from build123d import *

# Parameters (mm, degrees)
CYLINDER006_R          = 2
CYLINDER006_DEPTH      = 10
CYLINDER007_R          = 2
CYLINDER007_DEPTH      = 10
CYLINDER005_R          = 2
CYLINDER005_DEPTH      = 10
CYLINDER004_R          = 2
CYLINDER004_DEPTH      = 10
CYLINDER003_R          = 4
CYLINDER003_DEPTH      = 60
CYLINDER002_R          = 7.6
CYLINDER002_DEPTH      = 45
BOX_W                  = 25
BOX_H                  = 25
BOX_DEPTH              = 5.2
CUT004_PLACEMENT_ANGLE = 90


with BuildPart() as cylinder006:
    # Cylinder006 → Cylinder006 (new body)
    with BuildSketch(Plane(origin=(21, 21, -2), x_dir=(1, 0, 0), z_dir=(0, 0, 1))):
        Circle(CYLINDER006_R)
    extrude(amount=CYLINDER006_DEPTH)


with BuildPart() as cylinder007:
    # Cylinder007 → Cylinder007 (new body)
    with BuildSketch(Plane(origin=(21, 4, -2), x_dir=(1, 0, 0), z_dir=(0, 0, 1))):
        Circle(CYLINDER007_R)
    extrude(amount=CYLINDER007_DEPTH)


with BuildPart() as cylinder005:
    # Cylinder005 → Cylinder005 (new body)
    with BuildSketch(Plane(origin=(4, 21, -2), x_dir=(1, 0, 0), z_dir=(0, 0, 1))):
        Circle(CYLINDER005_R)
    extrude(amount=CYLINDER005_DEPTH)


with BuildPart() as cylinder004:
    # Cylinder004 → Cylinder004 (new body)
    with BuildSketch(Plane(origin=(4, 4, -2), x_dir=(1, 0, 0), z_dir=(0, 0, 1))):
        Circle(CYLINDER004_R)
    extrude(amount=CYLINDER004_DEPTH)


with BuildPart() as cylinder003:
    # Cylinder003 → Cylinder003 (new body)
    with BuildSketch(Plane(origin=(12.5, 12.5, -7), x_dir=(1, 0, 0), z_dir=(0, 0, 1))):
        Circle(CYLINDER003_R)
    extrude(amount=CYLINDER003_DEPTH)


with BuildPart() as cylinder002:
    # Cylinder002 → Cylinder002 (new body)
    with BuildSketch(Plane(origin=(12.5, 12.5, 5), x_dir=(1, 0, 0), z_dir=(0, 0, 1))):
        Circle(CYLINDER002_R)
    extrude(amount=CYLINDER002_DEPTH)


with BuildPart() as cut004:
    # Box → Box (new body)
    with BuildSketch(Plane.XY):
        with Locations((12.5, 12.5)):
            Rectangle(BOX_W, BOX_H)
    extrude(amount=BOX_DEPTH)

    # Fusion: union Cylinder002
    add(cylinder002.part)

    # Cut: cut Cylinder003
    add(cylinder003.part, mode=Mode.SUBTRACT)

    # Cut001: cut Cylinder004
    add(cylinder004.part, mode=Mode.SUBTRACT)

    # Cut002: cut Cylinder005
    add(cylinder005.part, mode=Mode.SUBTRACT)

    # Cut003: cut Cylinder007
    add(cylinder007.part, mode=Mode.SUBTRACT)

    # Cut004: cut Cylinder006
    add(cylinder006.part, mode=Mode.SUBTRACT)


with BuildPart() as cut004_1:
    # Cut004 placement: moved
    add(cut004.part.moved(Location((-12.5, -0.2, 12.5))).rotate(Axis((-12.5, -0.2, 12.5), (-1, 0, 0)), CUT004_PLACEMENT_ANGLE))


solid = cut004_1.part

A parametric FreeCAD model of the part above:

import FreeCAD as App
import Part
import Sketcher

V = App.Vector

doc = App.newDocument("Part")
params = doc.addObject("Spreadsheet::Sheet", "Params")
for row, (alias, value) in enumerate([
    ("sketch1_diameter", "4 mm"),
    ("pad1_length", "10 mm"),
    ("sketch2_diameter", "4 mm"),
    ("pad2_length", "10 mm"),
    ("sketch3_diameter", "4 mm"),
    ("pad3_length", "10 mm"),
    ("sketch4_diameter", "4 mm"),
    ("pad4_length", "10 mm"),
    ("sketch5_diameter", "8 mm"),
    ("pad5_length", "60 mm"),
    ("sketch6_diameter", "15.2 mm"),
    ("pad6_length", "45 mm"),
    ("sketch7_width", "25 mm"),
    ("pad7_length", "5.2 mm"),
], start=1):
    params.set(f"A{row}", alias)
    params.set(f"B{row}", "=" + value)
    params.setAlias(f"B{row}", alias)

body = doc.addObject("PartDesign::Body", "Body")

# Sketch on XY plane
sketch1 = doc.addObject("Sketcher::SketchObject", "Sketch")
body.addObject(sketch1)
sketch1.AttachmentSupport = (doc.XY_Plane, [""])
sketch1.MapMode = "FlatFace"
sketch1.AttachmentOffset = App.Placement(V(0, 0, -2), App.Rotation())
sketch1.addGeometry(Part.Circle(V(21, 21, 0), V(0, 0, 1), 2), False)
sketch1.addConstraint([
    Sketcher.Constraint("Diameter", 0, 4.0),
    Sketcher.Constraint("DistanceX", -1, 1, 0, 3, 21.0),
    Sketcher.Constraint("DistanceY", -1, 1, 0, 3, 21.0),
])
sketch1.setExpression("Constraints[0]", "Params.sketch1_diameter")
pad1 = doc.addObject("PartDesign::Pad", "Pad")
body.addObject(pad1)
pad1.Profile = sketch1
pad1.setExpression("Length", "Params.pad1_length")
body2 = doc.addObject("PartDesign::Body", "Body001")

# Sketch on XY plane
sketch2 = doc.addObject("Sketcher::SketchObject", "Sketch001")
body2.addObject(sketch2)
sketch2.AttachmentSupport = (doc.getObject("XY_Plane001"), [""])
sketch2.MapMode = "FlatFace"
sketch2.AttachmentOffset = App.Placement(V(0, 0, -2), App.Rotation())
sketch2.addGeometry(Part.Circle(V(21, 4, 0), V(0, 0, 1), 2), False)
sketch2.addConstraint([
    Sketcher.Constraint("Diameter", 0, 4.0),
    Sketcher.Constraint("DistanceX", -1, 1, 0, 3, 21.0),
    Sketcher.Constraint("DistanceY", -1, 1, 0, 3, 4.0),
])
sketch2.setExpression("Constraints[0]", "Params.sketch2_diameter")
pad2 = doc.addObject("PartDesign::Pad", "Pad001")
body2.addObject(pad2)
pad2.Profile = sketch2
pad2.setExpression("Length", "Params.pad2_length")
body3 = doc.addObject("PartDesign::Body", "Body002")

# Sketch on XY plane
sketch3 = doc.addObject("Sketcher::SketchObject", "Sketch002")
body3.addObject(sketch3)
sketch3.AttachmentSupport = (doc.getObject("XY_Plane002"), [""])
sketch3.MapMode = "FlatFace"
sketch3.AttachmentOffset = App.Placement(V(0, 0, -2), App.Rotation())
sketch3.addGeometry(Part.Circle(V(4, 21, 0), V(0, 0, 1), 2), False)
sketch3.addConstraint([
    Sketcher.Constraint("Diameter", 0, 4.0),
    Sketcher.Constraint("DistanceX", -1, 1, 0, 3, 4.0),
    Sketcher.Constraint("DistanceY", -1, 1, 0, 3, 21.0),
])
sketch3.setExpression("Constraints[0]", "Params.sketch3_diameter")
pad3 = doc.addObject("PartDesign::Pad", "Pad002")
body3.addObject(pad3)
pad3.Profile = sketch3
pad3.setExpression("Length", "Params.pad3_length")
body4 = doc.addObject("PartDesign::Body", "Body003")

# Sketch on XY plane
sketch4 = doc.addObject("Sketcher::SketchObject", "Sketch003")
body4.addObject(sketch4)
sketch4.AttachmentSupport = (doc.getObject("XY_Plane003"), [""])
sketch4.MapMode = "FlatFace"
sketch4.AttachmentOffset = App.Placement(V(0, 0, -2), App.Rotation())
sketch4.addGeometry(Part.Circle(V(4, 4, 0), V(0, 0, 1), 2), False)
sketch4.addConstraint([
    Sketcher.Constraint("Diameter", 0, 4.0),
    Sketcher.Constraint("DistanceX", -1, 1, 0, 3, 4.0),
    Sketcher.Constraint("DistanceY", -1, 1, 0, 3, 4.0),
])
sketch4.setExpression("Constraints[0]", "Params.sketch4_diameter")
pad4 = doc.addObject("PartDesign::Pad", "Pad003")
body4.addObject(pad4)
pad4.Profile = sketch4
pad4.setExpression("Length", "Params.pad4_length")
body5 = doc.addObject("PartDesign::Body", "Body004")

# Sketch on XY plane
sketch5 = doc.addObject("Sketcher::SketchObject", "Sketch004")
body5.addObject(sketch5)
sketch5.AttachmentSupport = (doc.getObject("XY_Plane004"), [""])
sketch5.MapMode = "FlatFace"
sketch5.AttachmentOffset = App.Placement(V(0, 0, -7), App.Rotation())
sketch5.addGeometry(Part.Circle(V(12.5, 12.5, 0), V(0, 0, 1), 4), False)
sketch5.addConstraint([
    Sketcher.Constraint("Diameter", 0, 8.0),
    Sketcher.Constraint("DistanceX", -1, 1, 0, 3, 12.5),
    Sketcher.Constraint("DistanceY", -1, 1, 0, 3, 12.5),
])
sketch5.setExpression("Constraints[0]", "Params.sketch5_diameter")
pad5 = doc.addObject("PartDesign::Pad", "Pad004")
body5.addObject(pad5)
pad5.Profile = sketch5
pad5.setExpression("Length", "Params.pad5_length")
body6 = doc.addObject("PartDesign::Body", "Body005")

# Sketch on XY plane
sketch6 = doc.addObject("Sketcher::SketchObject", "Sketch005")
body6.addObject(sketch6)
sketch6.AttachmentSupport = (doc.getObject("XY_Plane005"), [""])
sketch6.MapMode = "FlatFace"
sketch6.AttachmentOffset = App.Placement(V(0, 0, 5), App.Rotation())
sketch6.addGeometry(Part.Circle(V(12, 12, 0), V(0, 0, 1), 8), False)
sketch6.addConstraint([
    Sketcher.Constraint("Diameter", 0, 15.2),
    Sketcher.Constraint("DistanceX", -1, 1, 0, 3, 12.5),
    Sketcher.Constraint("DistanceY", -1, 1, 0, 3, 12.5),
])
sketch6.setExpression("Constraints[0]", "Params.sketch6_diameter")
pad6 = doc.addObject("PartDesign::Pad", "Pad005")
body6.addObject(pad6)
pad6.Profile = sketch6
pad6.setExpression("Length", "Params.pad6_length")
body7 = doc.addObject("PartDesign::Body", "Body006")

# Sketch on XY plane
sketch7 = doc.addObject("Sketcher::SketchObject", "Sketch006")
body7.addObject(sketch7)
sketch7.AttachmentSupport = (doc.getObject("XY_Plane006"), [""])
sketch7.MapMode = "FlatFace"
sketch7.addGeometry([
    Part.LineSegment(V(0, 25, 0), V(0, 0, 0)),
    Part.LineSegment(V(0, 0, 0), V(25, 0, 0)),
    Part.LineSegment(V(25, 0, 0), V(25, 25, 0)),
    Part.LineSegment(V(25, 25, 0), V(0, 25, 0)),
], False)
sketch7.addConstraint([
    Sketcher.Constraint("Coincident", 0, 2, 1, 1),
    Sketcher.Constraint("Coincident", 1, 2, 2, 1),
    Sketcher.Constraint("Coincident", 2, 2, 3, 1),
    Sketcher.Constraint("Coincident", 3, 2, 0, 1),
    Sketcher.Constraint("Vertical", 0),
    Sketcher.Constraint("Horizontal", 1),
    Sketcher.Constraint("Vertical", 2),
    Sketcher.Constraint("Horizontal", 3),
    Sketcher.Constraint("Coincident", 0, 2, -1, 1),
    Sketcher.Constraint("Equal", 3, 0),
    Sketcher.Constraint("DistanceX", 1, 1, 1, 2, 25.0),
])
sketch7.setExpression("Constraints[10]", "Params.sketch7_width")
pad7 = doc.addObject("PartDesign::Pad", "Pad006")
body7.addObject(pad7)
pad7.Profile = sketch7
pad7.setExpression("Length", "Params.pad7_length")
doc.recompute()

boolean = doc.addObject("PartDesign::Boolean", "Boolean")
body7.addObject(boolean)
boolean.Type = "Fuse"
boolean.addObjects([body6])
doc.recompute()

boolean2 = doc.addObject("PartDesign::Boolean", "Boolean001")
body7.addObject(boolean2)
boolean2.Type = "Cut"
boolean2.addObjects([body5])
doc.recompute()

boolean3 = doc.addObject("PartDesign::Boolean", "Boolean002")
body7.addObject(boolean3)
boolean3.Type = "Cut"
boolean3.addObjects([body4])
doc.recompute()

boolean4 = doc.addObject("PartDesign::Boolean", "Boolean003")
body7.addObject(boolean4)
boolean4.Type = "Cut"
boolean4.addObjects([body3])
doc.recompute()

boolean5 = doc.addObject("PartDesign::Boolean", "Boolean004")
body7.addObject(boolean5)
boolean5.Type = "Cut"
boolean5.addObjects([body2])
doc.recompute()

boolean6 = doc.addObject("PartDesign::Boolean", "Boolean005")
body7.addObject(boolean6)
boolean6.Type = "Cut"
boolean6.addObjects([body])
body8 = doc.addObject("PartDesign::Body", "Body007")
doc.recompute()

body7.Placement = App.Placement(V(-12.5, -0.2, 12.5), App.Rotation(V(-1, 0, 0), 90))
boolean7 = doc.addObject("PartDesign::Boolean", "Boolean006")
body8.addObject(boolean7)
boolean7.Type = "Fuse"
boolean7.addObjects([body7])

doc.recompute()
